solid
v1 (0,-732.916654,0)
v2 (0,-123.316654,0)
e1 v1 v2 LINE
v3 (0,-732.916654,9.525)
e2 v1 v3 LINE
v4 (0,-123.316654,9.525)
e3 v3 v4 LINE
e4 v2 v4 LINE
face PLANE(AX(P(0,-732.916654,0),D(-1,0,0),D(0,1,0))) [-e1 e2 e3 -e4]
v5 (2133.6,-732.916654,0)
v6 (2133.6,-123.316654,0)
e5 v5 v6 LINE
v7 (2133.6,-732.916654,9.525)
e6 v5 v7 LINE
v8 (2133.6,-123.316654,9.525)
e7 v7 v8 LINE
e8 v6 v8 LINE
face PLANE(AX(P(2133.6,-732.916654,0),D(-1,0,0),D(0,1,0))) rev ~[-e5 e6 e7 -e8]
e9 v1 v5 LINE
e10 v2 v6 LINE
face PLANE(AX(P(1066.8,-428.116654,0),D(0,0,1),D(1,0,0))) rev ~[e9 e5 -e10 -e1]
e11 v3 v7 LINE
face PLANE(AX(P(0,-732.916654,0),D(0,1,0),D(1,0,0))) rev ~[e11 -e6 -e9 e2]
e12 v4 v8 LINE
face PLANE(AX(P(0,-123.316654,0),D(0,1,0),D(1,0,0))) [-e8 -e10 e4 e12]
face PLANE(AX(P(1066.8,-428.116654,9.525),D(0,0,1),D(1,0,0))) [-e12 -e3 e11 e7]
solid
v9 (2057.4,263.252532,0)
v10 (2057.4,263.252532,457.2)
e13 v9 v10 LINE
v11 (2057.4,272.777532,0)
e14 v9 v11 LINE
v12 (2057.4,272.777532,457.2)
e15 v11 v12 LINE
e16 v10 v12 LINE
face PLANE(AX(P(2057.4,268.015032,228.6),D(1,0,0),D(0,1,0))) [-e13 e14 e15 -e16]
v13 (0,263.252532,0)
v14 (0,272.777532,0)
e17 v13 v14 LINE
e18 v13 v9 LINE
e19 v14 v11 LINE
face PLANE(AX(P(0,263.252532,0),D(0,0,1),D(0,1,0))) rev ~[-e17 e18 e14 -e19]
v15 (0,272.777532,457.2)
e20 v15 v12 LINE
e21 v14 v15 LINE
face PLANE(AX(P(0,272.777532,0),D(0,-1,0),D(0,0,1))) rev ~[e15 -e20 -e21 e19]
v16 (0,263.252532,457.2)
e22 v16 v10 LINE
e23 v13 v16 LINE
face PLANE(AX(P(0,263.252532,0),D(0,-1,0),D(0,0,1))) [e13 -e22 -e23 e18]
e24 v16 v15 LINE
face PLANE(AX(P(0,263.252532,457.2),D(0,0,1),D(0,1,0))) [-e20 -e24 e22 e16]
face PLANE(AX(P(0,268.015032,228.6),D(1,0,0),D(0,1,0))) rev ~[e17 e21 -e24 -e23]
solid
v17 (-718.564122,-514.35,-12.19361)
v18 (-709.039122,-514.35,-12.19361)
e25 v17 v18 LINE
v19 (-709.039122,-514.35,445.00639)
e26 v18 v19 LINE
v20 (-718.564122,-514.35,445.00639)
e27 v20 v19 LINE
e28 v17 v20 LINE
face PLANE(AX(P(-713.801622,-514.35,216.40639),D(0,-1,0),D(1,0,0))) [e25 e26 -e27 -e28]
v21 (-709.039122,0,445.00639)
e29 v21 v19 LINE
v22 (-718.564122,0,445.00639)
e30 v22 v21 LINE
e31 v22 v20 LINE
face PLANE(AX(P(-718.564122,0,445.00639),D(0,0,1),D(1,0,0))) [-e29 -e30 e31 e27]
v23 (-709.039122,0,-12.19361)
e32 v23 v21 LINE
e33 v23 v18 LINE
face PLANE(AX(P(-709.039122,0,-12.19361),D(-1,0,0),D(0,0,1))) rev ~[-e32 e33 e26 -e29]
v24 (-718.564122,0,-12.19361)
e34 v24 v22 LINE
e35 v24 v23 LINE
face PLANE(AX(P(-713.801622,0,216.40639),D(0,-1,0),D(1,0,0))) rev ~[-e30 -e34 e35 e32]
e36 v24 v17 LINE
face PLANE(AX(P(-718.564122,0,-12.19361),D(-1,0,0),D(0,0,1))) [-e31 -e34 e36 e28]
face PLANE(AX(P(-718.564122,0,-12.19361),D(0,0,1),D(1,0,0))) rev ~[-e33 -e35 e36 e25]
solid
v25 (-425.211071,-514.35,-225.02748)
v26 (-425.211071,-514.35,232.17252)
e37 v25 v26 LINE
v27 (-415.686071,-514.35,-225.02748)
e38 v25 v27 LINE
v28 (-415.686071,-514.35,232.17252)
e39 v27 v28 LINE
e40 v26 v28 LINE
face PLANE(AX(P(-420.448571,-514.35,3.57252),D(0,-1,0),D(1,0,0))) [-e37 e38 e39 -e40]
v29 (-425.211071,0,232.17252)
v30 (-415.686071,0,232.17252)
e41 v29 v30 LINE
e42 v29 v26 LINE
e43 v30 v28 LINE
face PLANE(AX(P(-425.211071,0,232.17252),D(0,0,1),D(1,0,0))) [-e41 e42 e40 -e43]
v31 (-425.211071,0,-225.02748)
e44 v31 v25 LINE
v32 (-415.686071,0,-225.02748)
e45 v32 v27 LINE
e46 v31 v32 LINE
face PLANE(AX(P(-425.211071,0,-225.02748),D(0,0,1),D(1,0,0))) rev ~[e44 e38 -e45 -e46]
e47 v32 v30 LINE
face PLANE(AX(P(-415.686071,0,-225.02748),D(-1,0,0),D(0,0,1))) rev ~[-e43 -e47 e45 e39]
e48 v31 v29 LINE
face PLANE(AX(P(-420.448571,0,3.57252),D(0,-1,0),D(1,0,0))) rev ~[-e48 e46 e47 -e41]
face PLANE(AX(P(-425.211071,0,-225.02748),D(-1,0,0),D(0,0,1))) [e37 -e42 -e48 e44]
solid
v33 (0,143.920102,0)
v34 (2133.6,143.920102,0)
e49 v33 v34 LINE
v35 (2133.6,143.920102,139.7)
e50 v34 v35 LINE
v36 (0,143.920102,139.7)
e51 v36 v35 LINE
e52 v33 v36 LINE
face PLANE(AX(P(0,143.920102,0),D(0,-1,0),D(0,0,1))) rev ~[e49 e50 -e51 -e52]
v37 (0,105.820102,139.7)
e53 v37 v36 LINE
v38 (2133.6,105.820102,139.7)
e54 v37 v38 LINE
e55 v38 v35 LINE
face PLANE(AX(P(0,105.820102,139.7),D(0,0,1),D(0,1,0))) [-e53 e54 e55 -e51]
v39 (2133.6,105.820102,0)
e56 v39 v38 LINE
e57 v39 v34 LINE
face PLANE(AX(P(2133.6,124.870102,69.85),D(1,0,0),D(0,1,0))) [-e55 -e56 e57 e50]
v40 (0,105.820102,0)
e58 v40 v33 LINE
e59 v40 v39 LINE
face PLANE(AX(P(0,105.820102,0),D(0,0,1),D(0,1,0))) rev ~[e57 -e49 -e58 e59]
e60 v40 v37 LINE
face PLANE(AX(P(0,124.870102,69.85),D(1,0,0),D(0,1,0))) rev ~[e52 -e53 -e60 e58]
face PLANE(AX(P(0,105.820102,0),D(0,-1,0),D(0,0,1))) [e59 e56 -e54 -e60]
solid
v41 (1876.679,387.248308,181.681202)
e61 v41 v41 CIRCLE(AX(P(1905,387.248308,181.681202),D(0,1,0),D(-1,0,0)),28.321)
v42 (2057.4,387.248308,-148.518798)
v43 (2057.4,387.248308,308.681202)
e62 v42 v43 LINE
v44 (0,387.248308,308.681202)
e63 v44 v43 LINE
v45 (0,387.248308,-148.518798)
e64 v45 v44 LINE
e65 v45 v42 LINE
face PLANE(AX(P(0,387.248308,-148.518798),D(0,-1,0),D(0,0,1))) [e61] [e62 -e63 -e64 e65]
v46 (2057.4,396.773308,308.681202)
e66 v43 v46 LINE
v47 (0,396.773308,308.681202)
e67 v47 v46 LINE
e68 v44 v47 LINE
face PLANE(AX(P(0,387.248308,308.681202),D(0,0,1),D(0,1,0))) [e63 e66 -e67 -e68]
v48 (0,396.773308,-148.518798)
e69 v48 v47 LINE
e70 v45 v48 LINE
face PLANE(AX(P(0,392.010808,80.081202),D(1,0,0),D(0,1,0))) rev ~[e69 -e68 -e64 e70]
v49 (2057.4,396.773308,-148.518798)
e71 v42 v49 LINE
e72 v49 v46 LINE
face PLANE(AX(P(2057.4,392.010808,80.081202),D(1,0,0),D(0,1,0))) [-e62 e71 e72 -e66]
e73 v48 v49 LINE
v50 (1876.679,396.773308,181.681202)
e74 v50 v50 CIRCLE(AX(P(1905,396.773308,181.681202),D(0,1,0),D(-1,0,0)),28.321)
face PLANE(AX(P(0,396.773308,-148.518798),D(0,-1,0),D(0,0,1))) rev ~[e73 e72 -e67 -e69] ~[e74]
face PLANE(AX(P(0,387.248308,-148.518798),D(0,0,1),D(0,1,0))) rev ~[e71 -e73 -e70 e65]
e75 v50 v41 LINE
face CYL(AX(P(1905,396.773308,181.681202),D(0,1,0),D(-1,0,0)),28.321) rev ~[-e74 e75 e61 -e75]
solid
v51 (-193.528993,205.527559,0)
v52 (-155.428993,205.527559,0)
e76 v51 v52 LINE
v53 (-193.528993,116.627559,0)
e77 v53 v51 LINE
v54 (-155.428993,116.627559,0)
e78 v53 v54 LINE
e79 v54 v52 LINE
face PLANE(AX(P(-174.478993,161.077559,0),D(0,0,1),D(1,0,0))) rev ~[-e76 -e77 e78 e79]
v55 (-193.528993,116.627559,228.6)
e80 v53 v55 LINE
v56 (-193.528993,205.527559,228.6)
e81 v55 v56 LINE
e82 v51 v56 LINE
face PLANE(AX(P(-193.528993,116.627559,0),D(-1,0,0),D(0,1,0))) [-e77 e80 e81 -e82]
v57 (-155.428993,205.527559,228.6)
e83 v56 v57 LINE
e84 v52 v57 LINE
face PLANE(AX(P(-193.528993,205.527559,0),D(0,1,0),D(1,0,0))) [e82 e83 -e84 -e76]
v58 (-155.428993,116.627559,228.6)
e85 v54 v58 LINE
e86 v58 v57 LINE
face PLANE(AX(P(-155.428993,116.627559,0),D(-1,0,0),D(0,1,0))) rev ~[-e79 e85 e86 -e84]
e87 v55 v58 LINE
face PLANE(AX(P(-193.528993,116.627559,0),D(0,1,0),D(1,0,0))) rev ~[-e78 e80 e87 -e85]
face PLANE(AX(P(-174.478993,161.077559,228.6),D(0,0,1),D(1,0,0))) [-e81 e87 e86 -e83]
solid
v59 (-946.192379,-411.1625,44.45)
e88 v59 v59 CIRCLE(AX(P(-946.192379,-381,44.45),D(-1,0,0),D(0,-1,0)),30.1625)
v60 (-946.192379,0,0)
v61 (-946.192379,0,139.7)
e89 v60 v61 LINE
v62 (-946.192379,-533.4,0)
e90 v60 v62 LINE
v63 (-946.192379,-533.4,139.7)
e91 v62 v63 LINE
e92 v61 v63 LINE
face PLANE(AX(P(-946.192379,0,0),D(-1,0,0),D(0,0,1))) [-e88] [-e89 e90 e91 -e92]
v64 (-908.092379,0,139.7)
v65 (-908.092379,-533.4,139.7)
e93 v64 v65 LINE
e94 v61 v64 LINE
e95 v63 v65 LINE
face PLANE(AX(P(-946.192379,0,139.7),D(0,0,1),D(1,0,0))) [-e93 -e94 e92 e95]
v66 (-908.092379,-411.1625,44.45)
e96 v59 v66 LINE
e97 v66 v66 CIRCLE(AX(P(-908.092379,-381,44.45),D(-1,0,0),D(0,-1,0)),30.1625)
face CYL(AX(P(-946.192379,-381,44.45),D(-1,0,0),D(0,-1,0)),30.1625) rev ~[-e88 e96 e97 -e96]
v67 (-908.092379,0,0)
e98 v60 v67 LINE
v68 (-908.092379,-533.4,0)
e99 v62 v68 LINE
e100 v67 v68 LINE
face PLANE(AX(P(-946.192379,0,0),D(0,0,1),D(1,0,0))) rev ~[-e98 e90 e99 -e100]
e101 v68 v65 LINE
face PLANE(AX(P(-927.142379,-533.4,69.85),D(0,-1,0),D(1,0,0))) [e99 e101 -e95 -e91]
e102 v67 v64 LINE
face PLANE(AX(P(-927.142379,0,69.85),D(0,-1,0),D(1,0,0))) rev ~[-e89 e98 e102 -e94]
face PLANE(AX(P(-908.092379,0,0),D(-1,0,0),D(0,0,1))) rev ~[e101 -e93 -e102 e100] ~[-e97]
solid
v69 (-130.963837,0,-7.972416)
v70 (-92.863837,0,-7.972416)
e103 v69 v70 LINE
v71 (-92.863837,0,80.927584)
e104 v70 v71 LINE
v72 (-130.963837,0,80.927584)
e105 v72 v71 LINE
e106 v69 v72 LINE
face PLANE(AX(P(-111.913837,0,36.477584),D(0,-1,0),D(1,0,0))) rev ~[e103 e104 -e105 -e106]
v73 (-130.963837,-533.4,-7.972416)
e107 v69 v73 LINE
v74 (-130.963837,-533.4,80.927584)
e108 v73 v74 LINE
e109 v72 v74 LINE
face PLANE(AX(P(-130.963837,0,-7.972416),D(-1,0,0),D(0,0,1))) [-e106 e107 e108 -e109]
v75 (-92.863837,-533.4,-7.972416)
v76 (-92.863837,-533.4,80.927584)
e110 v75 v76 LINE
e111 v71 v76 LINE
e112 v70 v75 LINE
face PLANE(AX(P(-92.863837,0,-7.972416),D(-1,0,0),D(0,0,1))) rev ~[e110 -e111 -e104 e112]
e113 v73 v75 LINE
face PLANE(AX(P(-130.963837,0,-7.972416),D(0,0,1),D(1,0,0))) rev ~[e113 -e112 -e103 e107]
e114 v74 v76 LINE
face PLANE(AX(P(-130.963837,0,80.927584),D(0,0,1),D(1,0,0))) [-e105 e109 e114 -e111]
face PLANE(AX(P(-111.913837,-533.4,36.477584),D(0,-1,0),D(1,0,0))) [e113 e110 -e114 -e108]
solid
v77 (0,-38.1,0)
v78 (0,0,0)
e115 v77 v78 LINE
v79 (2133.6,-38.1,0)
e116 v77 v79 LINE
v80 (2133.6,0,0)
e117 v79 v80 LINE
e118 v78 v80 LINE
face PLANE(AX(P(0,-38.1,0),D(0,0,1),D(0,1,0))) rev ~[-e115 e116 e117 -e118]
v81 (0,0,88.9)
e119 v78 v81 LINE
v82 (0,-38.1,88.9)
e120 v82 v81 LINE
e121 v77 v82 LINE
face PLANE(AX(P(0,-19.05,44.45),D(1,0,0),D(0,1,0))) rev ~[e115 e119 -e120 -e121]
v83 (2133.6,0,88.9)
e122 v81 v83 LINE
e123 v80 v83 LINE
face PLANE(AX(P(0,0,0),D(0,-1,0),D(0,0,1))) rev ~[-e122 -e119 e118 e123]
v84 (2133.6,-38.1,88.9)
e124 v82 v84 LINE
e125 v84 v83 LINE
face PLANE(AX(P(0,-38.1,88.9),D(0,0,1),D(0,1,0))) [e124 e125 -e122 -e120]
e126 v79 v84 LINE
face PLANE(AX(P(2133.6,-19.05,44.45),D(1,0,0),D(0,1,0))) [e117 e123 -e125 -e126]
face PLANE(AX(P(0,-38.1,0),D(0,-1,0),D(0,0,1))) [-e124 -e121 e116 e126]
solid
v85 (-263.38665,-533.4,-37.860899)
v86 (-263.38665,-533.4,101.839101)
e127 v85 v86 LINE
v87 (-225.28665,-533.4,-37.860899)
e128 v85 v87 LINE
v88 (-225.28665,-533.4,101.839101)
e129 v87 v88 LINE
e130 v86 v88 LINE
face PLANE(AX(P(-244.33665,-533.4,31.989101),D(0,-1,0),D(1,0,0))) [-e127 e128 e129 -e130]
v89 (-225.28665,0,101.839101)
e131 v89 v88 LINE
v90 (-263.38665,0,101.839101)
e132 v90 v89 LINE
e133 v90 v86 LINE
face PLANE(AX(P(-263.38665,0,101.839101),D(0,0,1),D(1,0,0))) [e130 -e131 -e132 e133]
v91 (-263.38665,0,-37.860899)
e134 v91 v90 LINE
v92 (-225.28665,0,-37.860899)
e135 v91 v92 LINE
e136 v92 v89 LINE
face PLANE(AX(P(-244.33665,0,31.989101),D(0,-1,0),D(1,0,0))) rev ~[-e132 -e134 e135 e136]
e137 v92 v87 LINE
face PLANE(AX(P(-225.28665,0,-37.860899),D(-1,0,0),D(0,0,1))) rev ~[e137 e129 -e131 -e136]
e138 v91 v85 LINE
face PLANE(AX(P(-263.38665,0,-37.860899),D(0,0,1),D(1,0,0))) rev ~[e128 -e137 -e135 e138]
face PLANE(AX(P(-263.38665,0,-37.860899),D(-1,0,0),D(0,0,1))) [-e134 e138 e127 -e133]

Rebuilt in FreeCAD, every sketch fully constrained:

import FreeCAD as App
import Part
import Sketcher
Q = App.Units.Quantity


def add_polygon(sketch, points):
    """Adds a closed chain of lines whose ends are joined by coincident constraints."""
    first, n = sketch.GeometryCount, len(points)
    for a, b in zip(points, points[1:] + points[:1]):
        sketch.addGeometry(Part.LineSegment(App.Vector(*a, 0), App.Vector(*b, 0)), False)
    for i in range(n):
        sketch.addConstraint(Sketcher.Constraint("Coincident", first + i, 2, first + (i + 1) % n, 1))

doc = App.newDocument("Part")
body = doc.addObject("PartDesign::Body", "Body")

sketch1 = body.newObject("Sketcher::SketchObject", "Sketch")
sketch1.AttachmentSupport = (doc.getObject("YZ_Plane"), [""])
sketch1.MapMode = "FlatFace"
add_polygon(sketch1, [(-38.1, 88.9), (-38.1, 0), (0, 0), (0, 88.9)])
sketch1.addConstraint([
    Sketcher.Constraint("Vertical", 0),
    Sketcher.Constraint("Horizontal", 1),
    Sketcher.Constraint("Vertical", 2),
    Sketcher.Constraint("Horizontal", 3),
    Sketcher.Constraint("Coincident", 1, 2, -1, 1),
    Sketcher.Constraint("DistanceX", 1, 1, 1, 2, Q("1.5 in")),
    Sketcher.Constraint("DistanceY", 0, 2, 0, 1, Q("3.5 in")),
])
pad1 = body.newObject("PartDesign::Pad", "Pad")
pad1.Profile = sketch1
pad1.Length = Q("84 in")
body2 = doc.addObject("PartDesign::Body", "Body001")

sketch2 = body2.newObject("Sketcher::SketchObject", "Sketch001")
sketch2.AttachmentSupport = (doc.getObject("XZ_Plane001"), [""])
sketch2.MapMode = "FlatFace"
add_polygon(sketch2, [(-130.963837, 80.927584), (-130.963837, -7.972416), (-92.863837, -7.972416), (-92.863837, 80.927584)])
sketch2.addConstraint([
    Sketcher.Constraint("Vertical", 0),
    Sketcher.Constraint("Horizontal", 1),
    Sketcher.Constraint("Vertical", 2),
    Sketcher.Constraint("Horizontal", 3),
    Sketcher.Constraint("DistanceX", 1, 1, 1, 2, Q("1.5 in")),
    Sketcher.Constraint("DistanceY", 0, 2, 0, 1, Q("3.5 in")),
    Sketcher.Constraint("DistanceX", 0, 2, -1, 1, 130.963837),
    Sketcher.Constraint("DistanceY", 0, 2, -1, 1, 7.972416),
])
pad2 = body2.newObject("PartDesign::Pad", "Pad001")
pad2.Profile = sketch2
pad2.Length = Q("21 in")
body3 = doc.addObject("PartDesign::Body", "Body002")

sketch3 = body3.newObject("Sketcher::SketchObject", "Sketch002")
sketch3.AttachmentSupport = (doc.getObject("YZ_Plane002"), [""])
sketch3.MapMode = "FlatFace"
add_polygon(sketch3, [(105.820102, 139.7), (105.820102, 0), (143.920102, 0), (143.920102, 139.7)])
sketch3.addConstraint([
    Sketcher.Constraint("Vertical", 0),
    Sketcher.Constraint("Horizontal", 1),
    Sketcher.Constraint("Vertical", 2),
    Sketcher.Constraint("Horizontal", 3),
    Sketcher.Constraint("PointOnObject", 0, 2, -1),
    Sketcher.Constraint("DistanceX", 1, 1, 1, 2, Q("1.5 in")),
    Sketcher.Constraint("DistanceY", 0, 2, 0, 1, Q("5.5 in")),
    Sketcher.Constraint("DistanceX", -1, 1, 0, 2, 105.820102),
])
pad3 = body3.newObject("PartDesign::Pad", "Pad002")
pad3.Profile = sketch3
pad3.Length = Q("84 in")
body4 = doc.addObject("PartDesign::Body", "Body003")

sketch4 = body4.newObject("Sketcher::SketchObject", "Sketch003")
sketch4.AttachmentSupport = (doc.getObject("XZ_Plane003"), [""])
sketch4.MapMode = "FlatFace"
add_polygon(sketch4, [(-263.38665, 101.839101), (-263.38665, -37.860899), (-225.28665, -37.860899), (-225.28665, 101.839101)])
sketch4.addConstraint([
    Sketcher.Constraint("Vertical", 0),
    Sketcher.Constraint("Horizontal", 1),
    Sketcher.Constraint("Vertical", 2),
    Sketcher.Constraint("Horizontal", 3),
    Sketcher.Constraint("DistanceX", 1, 1, 1, 2, Q("1.5 in")),
    Sketcher.Constraint("DistanceY", 0, 2, 0, 1, Q("5.5 in")),
    Sketcher.Constraint("DistanceY", 0, 2, -1, 1, 37.860899),
    Sketcher.Constraint("DistanceX", 0, 2, -1, 1, 263.38665),
])
pad4 = body4.newObject("PartDesign::Pad", "Pad003")
pad4.Profile = sketch4
pad4.Length = Q("21 in")
body5 = doc.addObject("PartDesign::Body", "Body004")

sketch5 = body5.newObject("Sketcher::SketchObject", "Sketch004")
sketch5.AttachmentSupport = (doc.getObject("XY_Plane004"), [""])
sketch5.MapMode = "FlatFace"
add_polygon(sketch5, [(-193.528993, 205.527559), (-193.528993, 116.627559), (-155.428993, 116.627559), (-155.428993, 205.527559)])
sketch5.addConstraint([
    Sketcher.Constraint("Vertical", 0),
    Sketcher.Constraint("Horizontal", 1),
    Sketcher.Constraint("Vertical", 2),
    Sketcher.Constraint("Horizontal", 3),
    Sketcher.Constraint("DistanceX", 1, 1, 1, 2, Q("1.5 in")),
    Sketcher.Constraint("DistanceY", 0, 2, 0, 1, Q("3.5 in")),
    Sketcher.Constraint("DistanceY", -1, 1, 0, 2, 116.627559),
    Sketcher.Constraint("DistanceX", 0, 2, -1, 1, 193.528993),
])
pad5 = body5.newObject("PartDesign::Pad", "Pad004")
pad5.Profile = sketch5
pad5.Length = Q("9 in")
body6 = doc.addObject("PartDesign::Body", "Body005")

sketch6 = body6.newObject("Sketcher::SketchObject", "Sketch005")
sketch6.AttachmentSupport = (doc.getObject("XY_Plane005"), [""])
sketch6.MapMode = "FlatFace"
add_polygon(sketch6, [(0, -123.316654), (0, -732.916654), (2133.6, -732.916654), (2133.6, -123.316654)])
sketch6.addConstraint([
    Sketcher.Constraint("Vertical", 0),
    Sketcher.Constraint("Horizontal", 1),
    Sketcher.Constraint("Vertical", 2),
    Sketcher.Constraint("Horizontal", 3),
    Sketcher.Constraint("PointOnObject", 0, 2, -2),
    Sketcher.Constraint("DistanceX", 1, 1, 1, 2, Q("84 in")),
    Sketcher.Constraint("DistanceY", 0, 2, 0, 1, Q("24 in")),
    Sketcher.Constraint("DistanceY", 0, 2, -1, 1, 732.916654),
])
pad6 = body6.newObject("PartDesign::Pad", "Pad005")
pad6.Profile = sketch6
pad6.Length = Q("0.375 in")
body7 = doc.addObject("PartDesign::Body", "Body006")

sketch7 = body7.newObject("Sketcher::SketchObject", "Sketch006")
sketch7.AttachmentSupport = (doc.getObject("YZ_Plane006"), [""])
sketch7.MapMode = "FlatFace"
add_polygon(sketch7, [(263.252532, 457.2), (263.252532, 0), (272.777532, 0), (272.777532, 457.2)])
sketch7.addConstraint([
    Sketcher.Constraint("Vertical", 0),
    Sketcher.Constraint("Horizontal", 1),
    Sketcher.Constraint("Vertical", 2),
    Sketcher.Constraint("Horizontal", 3),
    Sketcher.Constraint("PointOnObject", 0, 2, -1),
    Sketcher.Constraint("DistanceY", 0, 2, 0, 1, Q("18 in")),
    Sketcher.Constraint("DistanceX", 1, 1, 1, 2, Q("0.375 in")),
    Sketcher.Constraint("DistanceX", -1, 1, 0, 2, 263.252532),
])
pad7 = body7.newObject("PartDesign::Pad", "Pad006")
pad7.Profile = sketch7
pad7.Length = Q("81 in")
body8 = doc.addObject("PartDesign::Body", "Body007")

sketch8 = body8.newObject("Sketcher::SketchObject", "Sketch007")
sketch8.AttachmentSupport = (doc.getObject("YZ_Plane007"), [""])
sketch8.MapMode = "FlatFace"
add_polygon(sketch8, [(387.248308, 308.681202), (387.248308, -148.518798), (396.773308, -148.518798), (396.773308, 308.681202)])
sketch8.addConstraint([
    Sketcher.Constraint("Vertical", 0),
    Sketcher.Constraint("Horizontal", 1),
    Sketcher.Constraint("Vertical", 2),
    Sketcher.Constraint("Horizontal", 3),
    Sketcher.Constraint("DistanceY", 0, 2, 0, 1, Q("18 in")),
    Sketcher.Constraint("DistanceX", 1, 1, 1, 2, Q("0.375 in")),
    Sketcher.Constraint("DistanceY", 0, 2, -1, 1, 148.518798),
    Sketcher.Constraint("DistanceX", -1, 1, 0, 2, 387.248308),
])
pad8 = body8.newObject("PartDesign::Pad", "Pad007")
pad8.Profile = sketch8
pad8.Length = Q("81 in")

sketch9 = body8.newObject("Sketcher::SketchObject", "Sketch008")
sketch9.AttachmentSupport = (doc.getObject("XZ_Plane007"), [""])
sketch9.MapMode = "FlatFace"
sketch9.AttachmentOffset = App.Placement(App.Vector(0, 0, -396.773308), App.Rotation())
sketch9.addGeometry(Part.Circle(App.Vector(1905, 181.681202, 0), App.Vector(0, 0, 1), 28.321), False)
sketch9.addConstraint([
    Sketcher.Constraint("Diameter", 0, Q("2.23 in")),
    Sketcher.Constraint("DistanceX", -1, 1, 0, 3, Q("75 in")),
    Sketcher.Constraint("DistanceY", -1, 1, 0, 3, 181.681202),
])
pocket1 = body8.newObject("PartDesign::Pocket", "Pocket")
pocket1.Profile = sketch9
pocket1.Length = Q("1 in")
pocket1.Reversed = True
body9 = doc.addObject("PartDesign::Body", "Body008")

sketch10 = body9.newObject("Sketcher::SketchObject", "Sketch009")
sketch10.AttachmentSupport = (doc.getObject("XZ_Plane008"), [""])
sketch10.MapMode = "FlatFace"
add_polygon(sketch10, [(-425.211071, 232.17252), (-425.211071, -225.02748), (-415.686071, -225.02748), (-415.686071, 232.17252)])
sketch10.addConstraint([
    Sketcher.Constraint("Vertical", 0),
    Sketcher.Constraint("Horizontal", 1),
    Sketcher.Constraint("Vertical", 2),
    Sketcher.Constraint("Horizontal", 3),
    Sketcher.Constraint("DistanceY", 0, 2, 0, 1, Q("18 in")),
    Sketcher.Constraint("DistanceX", 1, 1, 1, 2, Q("0.375 in")),
    Sketcher.Constraint("DistanceX", 0, 2, -1, 1, 425.211071),
    Sketcher.Constraint("DistanceY", 0, 2, -1, 1, 225.02748),
])
pad9 = body9.newObject("PartDesign::Pad", "Pad008")
pad9.Profile = sketch10
pad9.Length = Q("20.25 in")
body10 = doc.addObject("PartDesign::Body", "Body009")

sketch11 = body10.newObject("Sketcher::SketchObject", "Sketch010")
sketch11.AttachmentSupport = (doc.getObject("XZ_Plane009"), [""])
sketch11.MapMode = "FlatFace"
add_polygon(sketch11, [(-718.564122, 445.00639), (-718.564122, -12.19361), (-709.039122, -12.19361), (-709.039122, 445.00639)])
sketch11.addConstraint([
    Sketcher.Constraint("Vertical", 0),
    Sketcher.Constraint("Horizontal", 1),
    Sketcher.Constraint("Vertical", 2),
    Sketcher.Constraint("Horizontal", 3),
    Sketcher.Constraint("DistanceY", 0, 2, 0, 1, Q("18 in")),
    Sketcher.Constraint("DistanceX", 1, 1, 1, 2, Q("0.375 in")),
    Sketcher.Constraint("DistanceX", 0, 2, -1, 1, 718.564122),
    Sketcher.Constraint("DistanceY", 0, 2, -1, 1, 12.19361),
])
pad10 = body10.newObject("PartDesign::Pad", "Pad009")
pad10.Profile = sketch11
pad10.Length = Q("20.25 in")
body11 = doc.addObject("PartDesign::Body", "Body010")

sketch12 = body11.newObject("Sketcher::SketchObject", "Sketch011")
sketch12.AttachmentSupport = (doc.getObject("XZ_Plane010"), [""])
sketch12.MapMode = "FlatFace"
add_polygon(sketch12, [(-946.192379, 139.7), (-946.192379, 0), (-908.092379, 0), (-908.092379, 139.7)])
sketch12.addConstraint([
    Sketcher.Constraint("Vertical", 0),
    Sketcher.Constraint("Horizontal", 1),
    Sketcher.Constraint("Vertical", 2),
    Sketcher.Constraint("Horizontal", 3),
    Sketcher.Constraint("PointOnObject", 0, 2, -1),
    Sketcher.Constraint("DistanceX", 1, 1, 1, 2, Q("1.5 in")),
    Sketcher.Constraint("DistanceY", 0, 2, 0, 1, Q("5.5 in")),
    Sketcher.Constraint("DistanceX", 0, 2, -1, 1, 946.192379),
])
pad11 = body11.newObject("PartDesign::Pad", "Pad010")
pad11.Profile = sketch12
pad11.Length = Q("21 in")

sketch13 = body11.newObject("Sketcher::SketchObject", "Sketch012")
sketch13.AttachmentSupport = (doc.getObject("YZ_Plane010"), [""])
sketch13.MapMode = "FlatFace"
sketch13.AttachmentOffset = App.Placement(App.Vector(0, 0, -946.192379), App.Rotation())
sketch13.addGeometry(Part.Circle(App.Vector(-381, 44.45, 0), App.Vector(0, 0, 1), 30.1625), False)
sketch13.addConstraint([
    Sketcher.Constraint("Diameter", 0, Q("2.375 in")),
    Sketcher.Constraint("DistanceX", 0, 3, -1, 1, Q("15 in")),
    Sketcher.Constraint("DistanceY", -1, 1, 0, 3, Q("1.75 in")),
])
pocket2 = body11.newObject("PartDesign::Pocket", "Pocket001")
pocket2.Profile = sketch13
pocket2.Length = Q("1.5 in")
pocket2.Reversed = True

doc.recompute()
